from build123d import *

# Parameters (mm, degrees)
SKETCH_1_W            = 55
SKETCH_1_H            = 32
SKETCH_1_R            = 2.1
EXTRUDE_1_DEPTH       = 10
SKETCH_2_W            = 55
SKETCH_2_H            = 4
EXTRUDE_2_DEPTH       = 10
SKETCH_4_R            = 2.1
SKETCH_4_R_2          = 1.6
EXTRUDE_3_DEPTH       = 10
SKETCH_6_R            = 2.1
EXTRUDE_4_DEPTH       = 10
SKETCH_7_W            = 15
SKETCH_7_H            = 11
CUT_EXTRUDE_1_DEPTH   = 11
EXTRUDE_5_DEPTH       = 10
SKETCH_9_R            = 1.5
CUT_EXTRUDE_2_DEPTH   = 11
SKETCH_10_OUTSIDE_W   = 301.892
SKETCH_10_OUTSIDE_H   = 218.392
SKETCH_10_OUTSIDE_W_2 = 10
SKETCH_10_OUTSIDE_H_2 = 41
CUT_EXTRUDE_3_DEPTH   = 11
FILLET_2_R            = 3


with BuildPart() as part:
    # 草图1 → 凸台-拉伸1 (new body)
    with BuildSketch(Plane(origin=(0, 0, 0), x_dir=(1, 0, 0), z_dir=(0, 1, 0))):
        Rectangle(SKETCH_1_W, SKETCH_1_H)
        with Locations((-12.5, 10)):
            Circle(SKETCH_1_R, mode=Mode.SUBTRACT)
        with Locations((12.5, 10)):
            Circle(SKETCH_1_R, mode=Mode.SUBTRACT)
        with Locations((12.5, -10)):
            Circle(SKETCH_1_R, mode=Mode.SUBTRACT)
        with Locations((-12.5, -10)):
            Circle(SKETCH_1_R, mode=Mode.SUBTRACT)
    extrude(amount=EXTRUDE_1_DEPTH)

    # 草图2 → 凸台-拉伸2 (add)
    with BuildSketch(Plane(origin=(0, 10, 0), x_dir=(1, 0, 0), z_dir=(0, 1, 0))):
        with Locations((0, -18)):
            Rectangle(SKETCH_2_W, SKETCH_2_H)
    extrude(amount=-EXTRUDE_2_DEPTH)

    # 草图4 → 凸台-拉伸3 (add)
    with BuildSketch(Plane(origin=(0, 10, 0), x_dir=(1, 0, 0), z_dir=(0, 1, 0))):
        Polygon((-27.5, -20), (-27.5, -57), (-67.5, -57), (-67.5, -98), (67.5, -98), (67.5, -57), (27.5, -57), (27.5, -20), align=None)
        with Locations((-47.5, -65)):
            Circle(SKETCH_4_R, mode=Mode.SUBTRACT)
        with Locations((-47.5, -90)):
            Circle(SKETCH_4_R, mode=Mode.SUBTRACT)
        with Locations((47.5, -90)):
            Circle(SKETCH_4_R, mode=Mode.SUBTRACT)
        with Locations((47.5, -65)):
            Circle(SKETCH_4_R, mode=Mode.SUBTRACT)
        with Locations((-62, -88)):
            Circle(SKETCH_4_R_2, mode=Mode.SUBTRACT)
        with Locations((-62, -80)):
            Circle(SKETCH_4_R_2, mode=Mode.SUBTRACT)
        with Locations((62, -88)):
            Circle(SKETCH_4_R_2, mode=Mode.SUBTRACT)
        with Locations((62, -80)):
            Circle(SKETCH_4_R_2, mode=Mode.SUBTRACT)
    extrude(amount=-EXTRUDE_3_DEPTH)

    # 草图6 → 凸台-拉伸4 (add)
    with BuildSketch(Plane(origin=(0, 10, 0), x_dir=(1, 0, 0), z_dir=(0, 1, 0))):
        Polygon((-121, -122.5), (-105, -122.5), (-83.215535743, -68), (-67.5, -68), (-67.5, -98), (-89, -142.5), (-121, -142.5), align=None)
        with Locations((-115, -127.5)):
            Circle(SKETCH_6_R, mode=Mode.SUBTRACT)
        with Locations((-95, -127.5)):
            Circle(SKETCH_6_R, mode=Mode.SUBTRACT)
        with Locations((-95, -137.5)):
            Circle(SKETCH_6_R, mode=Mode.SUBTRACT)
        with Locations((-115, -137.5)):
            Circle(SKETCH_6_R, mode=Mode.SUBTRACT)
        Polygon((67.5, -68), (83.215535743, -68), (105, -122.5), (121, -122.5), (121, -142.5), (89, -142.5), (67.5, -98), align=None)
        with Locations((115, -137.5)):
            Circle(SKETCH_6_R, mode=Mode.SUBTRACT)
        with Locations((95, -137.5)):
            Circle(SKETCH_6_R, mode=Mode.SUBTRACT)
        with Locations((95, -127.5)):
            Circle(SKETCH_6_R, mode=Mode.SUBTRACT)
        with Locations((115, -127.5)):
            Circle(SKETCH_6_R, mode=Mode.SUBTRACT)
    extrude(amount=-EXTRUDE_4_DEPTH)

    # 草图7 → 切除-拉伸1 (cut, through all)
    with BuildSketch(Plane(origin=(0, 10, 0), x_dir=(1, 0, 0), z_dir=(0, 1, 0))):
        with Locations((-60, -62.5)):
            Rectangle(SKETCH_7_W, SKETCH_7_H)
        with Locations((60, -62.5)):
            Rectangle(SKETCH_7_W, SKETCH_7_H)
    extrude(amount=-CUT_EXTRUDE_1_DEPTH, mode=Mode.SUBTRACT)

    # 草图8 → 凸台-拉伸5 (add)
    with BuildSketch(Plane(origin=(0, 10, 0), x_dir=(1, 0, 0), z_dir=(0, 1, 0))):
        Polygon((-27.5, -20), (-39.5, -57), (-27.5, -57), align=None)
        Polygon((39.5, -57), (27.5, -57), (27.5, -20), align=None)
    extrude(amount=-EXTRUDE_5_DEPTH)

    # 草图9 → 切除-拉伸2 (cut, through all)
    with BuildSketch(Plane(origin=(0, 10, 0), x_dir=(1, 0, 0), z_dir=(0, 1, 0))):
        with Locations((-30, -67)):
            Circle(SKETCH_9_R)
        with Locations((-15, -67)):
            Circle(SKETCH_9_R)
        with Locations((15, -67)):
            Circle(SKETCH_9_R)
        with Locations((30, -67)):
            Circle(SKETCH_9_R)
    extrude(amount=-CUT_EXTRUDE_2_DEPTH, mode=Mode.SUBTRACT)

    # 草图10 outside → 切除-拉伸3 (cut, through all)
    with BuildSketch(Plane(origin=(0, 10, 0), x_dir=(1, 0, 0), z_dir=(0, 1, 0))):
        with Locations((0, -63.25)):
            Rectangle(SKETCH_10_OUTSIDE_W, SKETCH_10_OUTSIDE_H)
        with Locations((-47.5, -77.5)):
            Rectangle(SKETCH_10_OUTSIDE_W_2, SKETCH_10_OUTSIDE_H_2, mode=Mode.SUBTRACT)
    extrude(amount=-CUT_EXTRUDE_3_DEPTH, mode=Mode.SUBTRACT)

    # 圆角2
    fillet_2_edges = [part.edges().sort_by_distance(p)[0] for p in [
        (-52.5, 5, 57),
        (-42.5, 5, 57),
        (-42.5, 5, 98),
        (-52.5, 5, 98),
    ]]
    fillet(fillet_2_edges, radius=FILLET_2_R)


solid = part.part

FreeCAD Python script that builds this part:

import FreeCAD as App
import Part
import Sketcher
from FreeCAD import Vector
Q = App.Units.Quantity


def edges_at(feature, points):
    """Names of the edges that pass closest to the given points."""
    edges = feature.Shape.Edges
    near = lambda p: min(range(len(edges)), key=lambda i: edges[i].distToShape(Part.Vertex(*p))[0])
    return sorted({f"Edge{near(p) + 1}" for p in points})

doc = App.newDocument("Part")
body = doc.addObject("PartDesign::Body", "Body")

sketch1 = body.newObject("Sketcher::SketchObject", "Sketch")
sketch1.AttachmentSupport = (doc.getObject("XZ_Plane"), [""])
sketch1.MapMode = "FlatFace"
sketch1.addGeometry(Part.LineSegment(Vector(-27.5, -16, 0), Vector(-27.5, 16, 0)), False)
sketch1.addGeometry(Part.LineSegment(Vector(-27.5, 16, 0), Vector(27.5, 16, 0)), False)
sketch1.addGeometry(Part.LineSegment(Vector(27.5, 16, 0), Vector(27.5, -16, 0)), False)
sketch1.addGeometry(Part.LineSegment(Vector(27.5, -16, 0), Vector(-27.5, -16, 0)), False)
sketch1.addGeometry(Part.Circle(Vector(-12.5, 10, 0), Vector(0, 0, 1), 2.1), False)
sketch1.addGeometry(Part.Circle(Vector(12.5, 10, 0), Vector(0, 0, 1), 2.1), False)
sketch1.addGeometry(Part.Circle(Vector(-12.5, -10, 0), Vector(0, 0, 1), 2.1), False)
sketch1.addGeometry(Part.Circle(Vector(12.5, -10, 0), Vector(0, 0, 1), 2.1), False)
sketch1.addConstraint(Sketcher.Constraint("Coincident", 0, 2, 1, 1))
sketch1.addConstraint(Sketcher.Constraint("Coincident", 1, 2, 2, 1))
sketch1.addConstraint(Sketcher.Constraint("Coincident", 2, 2, 3, 1))
sketch1.addConstraint(Sketcher.Constraint("Coincident", 3, 2, 0, 1))
sketch1.addConstraint(Sketcher.Constraint("Vertical", 0))
sketch1.addConstraint(Sketcher.Constraint("Horizontal", 1))
sketch1.addConstraint(Sketcher.Constraint("Vertical", 2))
sketch1.addConstraint(Sketcher.Constraint("Horizontal", 3))
sketch1.addConstraint(Sketcher.Constraint("Equal", 4, 5))
sketch1.addConstraint(Sketcher.Constraint("Equal", 5, 6))
sketch1.addConstraint(Sketcher.Constraint("Equal", 6, 7))
sketch1.addConstraint(Sketcher.Constraint("Symmetric", 5, 3, 6, 3, -1, 1))
sketch1.addConstraint(Sketcher.Constraint("Symmetric", 4, 3, 7, 3, -1, 1))
sketch1.addConstraint(Sketcher.Constraint("Symmetric", 0, 2, 2, 2, -1, 1))
sketch1.addConstraint(Sketcher.Constraint("Symmetric", 4, 3, 5, 3, -2))
sketch1.addConstraint(Sketcher.Constraint("Diameter", 4, Q("4.2 mm")))
sketch1.addConstraint(Sketcher.Constraint("DistanceX", 1, 1, 1, 2, Q("55 mm")))
sketch1.addConstraint(Sketcher.Constraint("DistanceY", 0, 1, 0, 2, Q("32 mm")))
sketch1.addConstraint(Sketcher.Constraint("DistanceY", -1, 1, 4, 3, Q("10 mm")))
sketch1.addConstraint(Sketcher.Constraint("DistanceX", 4, 3, 5, 3, Q("25 mm")))
pad1 = body.newObject("PartDesign::Pad", "Pad")
pad1.Profile = sketch1
pad1.Length = 10
pad1.Reversed = True

sketch2 = body.newObject("Sketcher::SketchObject", "Sketch001")
sketch2.AttachmentSupport = (doc.getObject("XZ_Plane"), [""])
sketch2.MapMode = "FlatFace"
sketch2.AttachmentOffset = App.Placement(Vector(0, 0, -10), App.Rotation())
sketch2.addGeometry(Part.LineSegment(Vector(-27.5, 16, 0), Vector(-27.5, 20, 0)), False)
sketch2.addGeometry(Part.LineSegment(Vector(-27.5, 20, 0), Vector(27.5, 20, 0)), False)
sketch2.addGeometry(Part.LineSegment(Vector(27.5, 20, 0), Vector(27.5, 16, 0)), False)
sketch2.addGeometry(Part.LineSegment(Vector(27.5, 16, 0), Vector(-27.5, 16, 0)), False)
sketch2.addConstraint(Sketcher.Constraint("Coincident", 0, 2, 1, 1))
sketch2.addConstraint(Sketcher.Constraint("Coincident", 1, 2, 2, 1))
sketch2.addConstraint(Sketcher.Constraint("Coincident", 2, 2, 3, 1))
sketch2.addConstraint(Sketcher.Constraint("Coincident", 3, 2, 0, 1))
sketch2.addConstraint(Sketcher.Constraint("Vertical", 0))
sketch2.addConstraint(Sketcher.Constraint("Horizontal", 1))
sketch2.addConstraint(Sketcher.Constraint("Vertical", 2))
sketch2.addConstraint(Sketcher.Constraint("Horizontal", 3))
sketch2.addConstraint(Sketcher.Constraint("DistanceX", 1, 1, 1, 2, Q("55 mm")))
sketch2.addConstraint(Sketcher.Constraint("DistanceY", 0, 1, 0, 2, Q("4 mm")))
sketch2.addConstraint(Sketcher.Constraint("DistanceY", -1, 1, 0, 2, Q("20 mm")))
sketch2.addConstraint(Sketcher.Constraint("DistanceX", 0, 2, -1, 1, Q("27.5 mm")))
pad2 = body.newObject("PartDesign::Pad", "Pad001")
pad2.Profile = sketch2
pad2.Length = 10

sketch3 = body.newObject("Sketcher::SketchObject", "Sketch002")
sketch3.AttachmentSupport = (doc.getObject("XZ_Plane"), [""])
sketch3.MapMode = "FlatFace"
sketch3.AttachmentOffset = App.Placement(Vector(0, 0, -10), App.Rotation())
sketch3.addGeometry(Part.LineSegment(Vector(-27.5, 20, 0), Vector(-27.5, 57, 0)), False)
sketch3.addGeometry(Part.LineSegment(Vector(-27.5, 57, 0), Vector(-67.5, 57, 0)), False)
sketch3.addGeometry(Part.LineSegment(Vector(-67.5, 57, 0), Vector(-67.5, 98, 0)), False)
sketch3.addGeometry(Part.LineSegment(Vector(-67.5, 98, 0), Vector(67.5, 98, 0)), False)
sketch3.addGeometry(Part.LineSegment(Vector(67.5, 98, 0), Vector(67.5, 57, 0)), False)
sketch3.addGeometry(Part.LineSegment(Vector(67.5, 57, 0), Vector(27.5, 57, 0)), False)
sketch3.addGeometry(Part.LineSegment(Vector(27.5, 57, 0), Vector(27.5, 20, 0)), False)
sketch3.addGeometry(Part.LineSegment(Vector(27.5, 20, 0), Vector(-27.5, 20, 0)), False)
sketch3.addGeometry(Part.Circle(Vector(-47.5, 90, 0), Vector(0, 0, 1), 2.1), False)
sketch3.addGeometry(Part.Circle(Vector(-62, 88, 0), Vector(0, 0, 1), 1.6), False)
sketch3.addGeometry(Part.Circle(Vector(-62, 80, 0), Vector(0, 0, 1), 1.6), False)
sketch3.addGeometry(Part.Circle(Vector(47.5, 90, 0), Vector(0, 0, 1), 2.1), False)
sketch3.addGeometry(Part.Circle(Vector(62, 88, 0), Vector(0, 0, 1), 1.6), False)
sketch3.addGeometry(Part.Circle(Vector(62, 80, 0), Vector(0, 0, 1), 1.6), False)
sketch3.addGeometry(Part.Circle(Vector(-47.5, 65, 0), Vector(0, 0, 1), 2.1), False)
sketch3.addGeometry(Part.Circle(Vector(47.5, 65, 0), Vector(0, 0, 1), 2.1), False)
sketch3.addConstraint(Sketcher.Constraint("Coincident", 0, 2, 1, 1))
sketch3.addConstraint(Sketcher.Constraint("Coincident", 1, 2, 2, 1))
sketch3.addConstraint(Sketcher.Constraint("Coincident", 2, 2, 3, 1))
sketch3.addConstraint(Sketcher.Constraint("Coincident", 3, 2, 4, 1))
sketch3.addConstraint(Sketcher.Constraint("Coincident", 4, 2, 5, 1))
sketch3.addConstraint(Sketcher.Constraint("Coincident", 5, 2, 6, 1))
sketch3.addConstraint(Sketcher.Constraint("Coincident", 6, 2, 7, 1))
sketch3.addConstraint(Sketcher.Constraint("Coincident", 7, 2, 0, 1))
sketch3.addConstraint(Sketcher.Constraint("Vertical", 0))
sketch3.addConstraint(Sketcher.Constraint("Horizontal", 1))
sketch3.addConstraint(Sketcher.Constraint("Vertical", 2))
sketch3.addConstraint(Sketcher.Constraint("Horizontal", 3))
sketch3.addConstraint(Sketcher.Constraint("Vertical", 4))
sketch3.addConstraint(Sketcher.Constraint("Horizontal", 5))
sketch3.addConstraint(Sketcher.Constraint("Vertical", 6))
sketch3.addConstraint(Sketcher.Constraint("Horizontal", 7))
sketch3.addConstraint(Sketcher.Constraint("Equal", 9, 10))
sketch3.addConstraint(Sketcher.Constraint("Equal", 8, 11))
sketch3.addConstraint(Sketcher.Constraint("Equal", 10, 12))
sketch3.addConstraint(Sketcher.Constraint("Equal", 12, 13))
sketch3.addConstraint(Sketcher.Constraint("Equal", 11, 14))
sketch3.addConstraint(Sketcher.Constraint("Equal", 14, 15))
sketch3.addConstraint(Sketcher.Constraint("Symmetric", 8, 3, 11, 3, -2))
sketch3.addConstraint(Sketcher.Constraint("Symmetric", 9, 3, 12, 3, -2))
sketch3.addConstraint(Sketcher.Constraint("Symmetric", 10, 3, 13, 3, -2))
sketch3.addConstraint(Sketcher.Constraint("Symmetric", 14, 3, 15, 3, -2))
sketch3.addConstraint(Sketcher.Constraint("Symmetric", 1, 2, 4, 2, -2))
sketch3.addConstraint(Sketcher.Constraint("Vertical", 9, 3, 10, 3))
sketch3.addConstraint(Sketcher.Constraint("Vertical", 8, 3, 14, 3))
sketch3.addConstraint(Sketcher.Constraint("Equal", 1, 5))
sketch3.addConstraint(Sketcher.Constraint("Diameter", 8, Q("4.2 mm")))
sketch3.addConstraint(Sketcher.Constraint("Diameter", 9, Q("3.2 mm")))
sketch3.addConstraint(Sketcher.Constraint("DistanceX", 1, 2, 1, 1, Q("40 mm")))
sketch3.addConstraint(Sketcher.Constraint("DistanceX", 3, 1, 3, 2, Q("135 mm")))
sketch3.addConstraint(Sketcher.Constraint("DistanceY", 0, 1, 0, 2, Q("37 mm")))
sketch3.addConstraint(Sketcher.Constraint("DistanceY", 2, 1, 2, 2, Q("41 mm")))
sketch3.addConstraint(Sketcher.Constraint("DistanceY", -1, 1, 8, 3, Q("90 mm")))
sketch3.addConstraint(Sketcher.Constraint("DistanceX", 9, 3, -1, 1, Q("62 mm")))
sketch3.addConstraint(Sketcher.Constraint("DistanceY", -1, 1, 9, 3, Q("88 mm")))
sketch3.addConstraint(Sketcher.Constraint("DistanceY", -1, 1, 10, 3, Q("80 mm")))
sketch3.addConstraint(Sketcher.Constraint("DistanceY", -1, 1, 14, 3, Q("65 mm")))
sketch3.addConstraint(Sketcher.Constraint("DistanceY", -1, 1, 0, 2, Q("57 mm")))
sketch3.addConstraint(Sketcher.Constraint("DistanceX", 8, 3, 11, 3, Q("95 mm")))
pad3 = body.newObject("PartDesign::Pad", "Pad002")
pad3.Profile = sketch3
pad3.Length = 10

sketch4 = body.newObject("Sketcher::SketchObject", "Sketch003")
sketch4.AttachmentSupport = (doc.getObject("XZ_Plane"), [""])
sketch4.MapMode = "FlatFace"
sketch4.AttachmentOffset = App.Placement(Vector(0, 0, -10), App.Rotation())
sketch4.addGeometry(Part.LineSegment(Vector(-105, 122.5, 0), Vector(-121, 122.5, 0)), False)
sketch4.addGeometry(Part.LineSegment(Vector(-121, 122.5, 0), Vector(-121, 142.5, 0)), False)
sketch4.addGeometry(Part.LineSegment(Vector(-121, 142.5, 0), Vector(-89, 142.5, 0)), False)
sketch4.addGeometry(Part.LineSegment(Vector(-89, 142.5, 0), Vector(-67.5, 98, 0)), False)
sketch4.addGeometry(Part.LineSegment(Vector(-67.5, 98, 0), Vector(-67.5, 68, 0)), False)
sketch4.addGeometry(Part.LineSegment(Vector(-67.5, 68, 0), Vector(-83.215536, 68, 0)), False)
sketch4.addGeometry(Part.LineSegment(Vector(-83.215536, 68, 0), Vector(-105, 122.5, 0)), False)
sketch4.addGeometry(Part.Circle(Vector(-95, 137.5, 0), Vector(0, 0, 1), 2.1), False)
sketch4.addGeometry(Part.Circle(Vector(-115, 137.5, 0), Vector(0, 0, 1), 2.1), False)
sketch4.addGeometry(Part.Circle(Vector(-95, 127.5, 0), Vector(0, 0, 1), 2.1), False)
sketch4.addGeometry(Part.Circle(Vector(-115, 127.5, 0), Vector(0, 0, 1), 2.1), False)
sketch4.addGeometry(Part.LineSegment(Vector(83.215536, 68, 0), Vector(67.5, 68, 0)), False)
sketch4.addGeometry(Part.LineSegment(Vector(67.5, 68, 0), Vector(67.5, 98, 0)), False)
sketch4.addGeometry(Part.LineSegment(Vector(67.5, 98, 0), Vector(89, 142.5, 0)), False)
sketch4.addGeometry(Part.LineSegment(Vector(89, 142.5, 0), Vector(121, 142.5, 0)), False)
sketch4.addGeometry(Part.LineSegment(Vector(121, 142.5, 0), Vector(121, 122.5, 0)), False)
sketch4.addGeometry(Part.LineSegment(Vector(121, 122.5, 0), Vector(105, 122.5, 0)), False)
sketch4.addGeometry(Part.LineSegment(Vector(105, 122.5, 0), Vector(83.215536, 68, 0)), False)
sketch4.addGeometry(Part.Circle(Vector(115, 137.5, 0), Vector(0, 0, 1), 2.1), False)
sketch4.addGeometry(Part.Circle(Vector(95, 137.5, 0), Vector(0, 0, 1), 2.1), False)
sketch4.addGeometry(Part.Circle(Vector(115, 127.5, 0), Vector(0, 0, 1), 2.1), False)
sketch4.addGeometry(Part.Circle(Vector(95, 127.5, 0), Vector(0, 0, 1), 2.1), False)
sketch4.addConstraint(Sketcher.Constraint("Coincident", 0, 2, 1, 1))
sketch4.addConstraint(Sketcher.Constraint("Coincident", 1, 2, 2, 1))
sketch4.addConstraint(Sketcher.Constraint("Coincident", 2, 2, 3, 1))
sketch4.addConstraint(Sketcher.Constraint("Coincident", 3, 2, 4, 1))
sketch4.addConstraint(Sketcher.Constraint("Coincident", 4, 2, 5, 1))
sketch4.addConstraint(Sketcher.Constraint("Coincident", 5, 2, 6, 1))
sketch4.addConstraint(Sketcher.Constraint("Coincident", 6, 2, 0, 1))
sketch4.addConstraint(Sketcher.Constraint("Coincident", 11, 2, 12, 1))
sketch4.addConstraint(Sketcher.Constraint("Coincident", 12, 2, 13, 1))
sketch4.addConstraint(Sketcher.Constraint("Coincident", 13, 2, 14, 1))
sketch4.addConstraint(Sketcher.Constraint("Coincident", 14, 2, 15, 1))
sketch4.addConstraint(Sketcher.Constraint("Coincident", 15, 2, 16, 1))
sketch4.addConstraint(Sketcher.Constraint("Coincident", 16, 2, 17, 1))
sketch4.addConstraint(Sketcher.Constraint("Coincident", 17, 2, 11, 1))
sketch4.addConstraint(Sketcher.Constraint("Horizontal", 0))
sketch4.addConstraint(Sketcher.Constraint("Vertical", 1))
sketch4.addConstraint(Sketcher.Constraint("Horizontal", 2))
sketch4.addConstraint(Sketcher.Constraint("Vertical", 4))
sketch4.addConstraint(Sketcher.Constraint("Horizontal", 5))
sketch4.addConstraint(Sketcher.Constraint("Horizontal", 11))
sketch4.addConstraint(Sketcher.Constraint("Vertical", 12))
sketch4.addConstraint(Sketcher.Constraint("Horizontal", 14))
sketch4.addConstraint(Sketcher.Constraint("Vertical", 15))
sketch4.addConstraint(Sketcher.Constraint("Horizontal", 16))
sketch4.addConstraint(Sketcher.Constraint("Equal", 7, 8))
sketch4.addConstraint(Sketcher.Constraint("Equal", 8, 9))
sketch4.addConstraint(Sketcher.Constraint("Equal", 9, 10))
sketch4.addConstraint(Sketcher.Constraint("Equal", 10, 18))
sketch4.addConstraint(Sketcher.Constraint("Equal", 18, 19))
sketch4.addConstraint(Sketcher.Constraint("Equal", 19, 20))
sketch4.addConstraint(Sketcher.Constraint("Equal", 20, 21))
sketch4.addConstraint(Sketcher.Constraint("Symmetric", 8, 3, 18, 3, -2))
sketch4.addConstraint(Sketcher.Constraint("Symmetric", 7, 3, 19, 3, -2))
sketch4.addConstraint(Sketcher.Constraint("Symmetric", 10, 3, 20, 3, -2))
sketch4.addConstraint(Sketcher.Constraint("Symmetric", 9, 3, 21, 3, -2))
sketch4.addConstraint(Sketcher.Constraint("Symmetric", 4, 2, 11, 2, -2))
sketch4.addConstraint(Sketcher.Constraint("Symmetric", 2, 2, 13, 2, -2))
sketch4.addConstraint(Sketcher.Constraint("Symmetric", 0, 2, 15, 2, -2))
sketch4.addConstraint(Sketcher.Constraint("Horizontal", 7, 3, 8, 3))
sketch4.addConstraint(Sketcher.Constraint("Horizontal", 9, 3, 10, 3))
sketch4.addConstraint(Sketcher.Constraint("Horizontal", 3, 2, 12, 2))
sketch4.addConstraint(Sketcher.Constraint("Vertical", 7, 3, 9, 3))
sketch4.addConstraint(Sketcher.Constraint("Vertical", 8, 3, 10, 3))
sketch4.addConstraint(Sketcher.Constraint("Equal", 5, 11))
sketch4.addConstraint(Sketcher.Constraint("Equal", 0, 16))
sketch4.addConstraint(Sketcher.Constraint("Diameter", 7, Q("4.2 mm")))
sketch4.addConstraint(Sketcher.Constraint("DistanceX", 0, 2, 0, 1, Q("16 mm")))
sketch4.addConstraint(Sketcher.Constraint("DistanceX", 2, 1, 2, 2, Q("32 mm")))
sketch4.addConstraint(Sketcher.Constraint("DistanceY", 1, 1, 1, 2, Q("20 mm")))
sketch4.addConstraint(Sketcher.Constraint("DistanceY", 4, 2, 4, 1, Q("30 mm")))
sketch4.addConstraint(Sketcher.Constraint("DistanceX", 7, 3, -1, 1, Q("95 mm")))
sketch4.addConstraint(Sketcher.Constraint("DistanceX", 8, 3, -1, 1, Q("115 mm")))
sketch4.addConstraint(Sketcher.Constraint("DistanceX", 0, 2, -1, 1, Q("121 mm")))
sketch4.addConstraint(Sketcher.Constraint("DistanceY", -1, 1, 3, 2, Q("98 mm")))
sketch4.addConstraint(Sketcher.Constraint("DistanceY", 9, 3, 7, 3, Q("10 mm")))
sketch4.addConstraint(Sketcher.Constraint("DistanceY", 0, 2, 10, 3, Q("5 mm")))
sketch4.addConstraint(Sketcher.Constraint("DistanceX", 4, 2, 11, 2, Q("135 mm")))
sketch4.addConstraint(Sketcher.Constraint("DistanceY", -1, 1, 7, 3, Q("137.5 mm")))
sketch4.addConstraint(Sketcher.Constraint("Distance", 6, Q("58.692528 mm")))
pad4 = body.newObject("PartDesign::Pad", "Pad003")
pad4.Profile = sketch4
pad4.Length = 10

sketch5 = body.newObject("Sketcher::SketchObject", "Sketch004")
sketch5.AttachmentSupport = (doc.getObject("XZ_Plane"), [""])
sketch5.MapMode = "FlatFace"
sketch5.AttachmentOffset = App.Placement(Vector(0, 0, -10), App.Rotation())
sketch5.addGeometry(Part.LineSegment(Vector(-67.5, 57, 0), Vector(-67.5, 68, 0)), False)
sketch5.addGeometry(Part.LineSegment(Vector(-67.5, 68, 0), Vector(-52.5, 68, 0)), False)
sketch5.addGeometry(Part.LineSegment(Vector(-52.5, 68, 0), Vector(-52.5, 57, 0)), False)
sketch5.addGeometry(Part.LineSegment(Vector(-52.5, 57, 0), Vector(-67.5, 57, 0)), False)
sketch5.addGeometry(Part.LineSegment(Vector(52.5, 57, 0), Vector(52.5, 68, 0)), False)
sketch5.addGeometry(Part.LineSegment(Vector(52.5, 68, 0), Vector(67.5, 68, 0)), False)
sketch5.addGeometry(Part.LineSegment(Vector(67.5, 68, 0), Vector(67.5, 57, 0)), False)
sketch5.addGeometry(Part.LineSegment(Vector(67.5, 57, 0), Vector(52.5, 57, 0)), False)
sketch5.addConstraint(Sketcher.Constraint("Coincident", 0, 2, 1, 1))
sketch5.addConstraint(Sketcher.Constraint("Coincident", 1, 2, 2, 1))
sketch5.addConstraint(Sketcher.Constraint("Coincident", 2, 2, 3, 1))
sketch5.addConstraint(Sketcher.Constraint("Coincident", 3, 2, 0, 1))
sketch5.addConstraint(Sketcher.Constraint("Coincident", 4, 2, 5, 1))
sketch5.addConstraint(Sketcher.Constraint("Coincident", 5, 2, 6, 1))
sketch5.addConstraint(Sketcher.Constraint("Coincident", 6, 2, 7, 1))
sketch5.addConstraint(Sketcher.Constraint("Coincident", 7, 2, 4, 1))
sketch5.addConstraint(Sketcher.Constraint("Vertical", 0))
sketch5.addConstraint(Sketcher.Constraint("Horizontal", 1))
sketch5.addConstraint(Sketcher.Constraint("Vertical", 2))
sketch5.addConstraint(Sketcher.Constraint("Horizontal", 3))
sketch5.addConstraint(Sketcher.Constraint("Vertical", 4))
sketch5.addConstraint(Sketcher.Constraint("Horizontal", 5))
sketch5.addConstraint(Sketcher.Constraint("Vertical", 6))
sketch5.addConstraint(Sketcher.Constraint("Horizontal", 7))
sketch5.addConstraint(Sketcher.Constraint("Symmetric", 1, 2, 4, 2, -2))
sketch5.addConstraint(Sketcher.Constraint("Symmetric", 3, 2, 6, 2, -2))
sketch5.addConstraint(Sketcher.Constraint("DistanceX", 1, 1, 1, 2, Q("15 mm")))
sketch5.addConstraint(Sketcher.Constraint("DistanceY", 0, 1, 0, 2, Q("11 mm")))
sketch5.addConstraint(Sketcher.Constraint("DistanceY", -1, 1, 0, 2, Q("68 mm")))
sketch5.addConstraint(Sketcher.Constraint("DistanceX", 1, 2, 4, 2, Q("105 mm")))
pocket1 = body.newObject("PartDesign::Pocket", "Pocket")
pocket1.Profile = sketch5
pocket1.Type = "ThroughAll"
pocket1.Reversed = True

sketch6 = body.newObject("Sketcher::SketchObject", "Sketch005")
sketch6.AttachmentSupport = (doc.getObject("XZ_Plane"), [""])
sketch6.MapMode = "FlatFace"
sketch6.AttachmentOffset = App.Placement(Vector(0, 0, -10), App.Rotation())
sketch6.addGeometry(Part.LineSegment(Vector(-27.5, 20, 0), Vector(-39.5, 57, 0)), False)
sketch6.addGeometry(Part.LineSegment(Vector(-39.5, 57, 0), Vector(-27.5, 57, 0)), False)
sketch6.addGeometry(Part.LineSegment(Vector(-27.5, 57, 0), Vector(-27.5, 20, 0)), False)
sketch6.addGeometry(Part.LineSegment(Vector(27.5, 57, 0), Vector(39.5, 57, 0)), False)
sketch6.addGeometry(Part.LineSegment(Vector(39.5, 57, 0), Vector(27.5, 20, 0)), False)
sketch6.addGeometry(Part.LineSegment(Vector(27.5, 20, 0), Vector(27.5, 57, 0)), False)
sketch6.addConstraint(Sketcher.Constraint("Coincident", 0, 2, 1, 1))
sketch6.addConstraint(Sketcher.Constraint("Coincident", 1, 2, 2, 1))
sketch6.addConstraint(Sketcher.Constraint("Coincident", 2, 2, 0, 1))
sketch6.addConstraint(Sketcher.Constraint("Coincident", 3, 2, 4, 1))
sketch6.addConstraint(Sketcher.Constraint("Coincident", 4, 2, 5, 1))
sketch6.addConstraint(Sketcher.Constraint("Coincident", 5, 2, 3, 1))
sketch6.addConstraint(Sketcher.Constraint("Horizontal", 1))
sketch6.addConstraint(Sketcher.Constraint("Vertical", 2))
sketch6.addConstraint(Sketcher.Constraint("Horizontal", 3))
sketch6.addConstraint(Sketcher.Constraint("Vertical", 5))
sketch6.addConstraint(Sketcher.Constraint("Symmetric", 0, 2, 3, 2, -2))
sketch6.addConstraint(Sketcher.Constraint("Symmetric", 2, 2, 4, 2, -2))
sketch6.addConstraint(Sketcher.Constraint("DistanceX", 1, 1, 1, 2, Q("12 mm")))
sketch6.addConstraint(Sketcher.Constraint("DistanceY", 2, 2, 2, 1, Q("37 mm")))
sketch6.addConstraint(Sketcher.Constraint("DistanceY", -1, 1, 0, 2, Q("57 mm")))
sketch6.addConstraint(Sketcher.Constraint("DistanceX", 1, 2, 3, 2, Q("67 mm")))
pad5 = body.newObject("PartDesign::Pad", "Pad004")
pad5.Profile = sketch6
pad5.Length = 10

sketch7 = body.newObject("Sketcher::SketchObject", "Sketch006")
sketch7.AttachmentSupport = (doc.getObject("XZ_Plane"), [""])
sketch7.MapMode = "FlatFace"
sketch7.AttachmentOffset = App.Placement(Vector(0, 0, -10), App.Rotation())
sketch7.addGeometry(Part.Circle(Vector(-30, 67, 0), Vector(0, 0, 1), 1.5), False)
sketch7.addGeometry(Part.Circle(Vector(-15, 67, 0), Vector(0, 0, 1), 1.5), False)
sketch7.addGeometry(Part.Circle(Vector(15, 67, 0), Vector(0, 0, 1), 1.5), False)
sketch7.addGeometry(Part.Circle(Vector(30, 67, 0), Vector(0, 0, 1), 1.5), False)
sketch7.addConstraint(Sketcher.Constraint("Equal", 0, 1))
sketch7.addConstraint(Sketcher.Constraint("Equal", 1, 2))
sketch7.addConstraint(Sketcher.Constraint("Equal", 2, 3))
sketch7.addConstraint(Sketcher.Constraint("Symmetric", 1, 3, 2, 3, -2))
sketch7.addConstraint(Sketcher.Constraint("Symmetric", 0, 3, 3, 3, -2))
sketch7.addConstraint(Sketcher.Constraint("Horizontal", 0, 3, 1, 3))
sketch7.addConstraint(Sketcher.Constraint("Diameter", 0, Q("3 mm")))
sketch7.addConstraint(Sketcher.Constraint("DistanceX", 0, 3, -1, 1, Q("30 mm")))
sketch7.addConstraint(Sketcher.Constraint("DistanceY", -1, 1, 0, 3, Q("67 mm")))
sketch7.addConstraint(Sketcher.Constraint("DistanceX", 1, 3, -1, 1, Q("15 mm")))
pocket2 = body.newObject("PartDesign::Pocket", "Pocket001")
pocket2.Profile = sketch7
pocket2.Type = "ThroughAll"
pocket2.Reversed = True

sketch8 = body.newObject("Sketcher::SketchObject", "Sketch007")
sketch8.AttachmentSupport = (doc.getObject("XZ_Plane"), [""])
sketch8.MapMode = "FlatFace"
sketch8.AttachmentOffset = App.Placement(Vector(0, 0, -10), App.Rotation())
sketch8.addGeometry(Part.LineSegment(Vector(-150.946, -45.946, 0), Vector(-150.946, 172.446, 0)), False)
sketch8.addGeometry(Part.LineSegment(Vector(-150.946, 172.446, 0), Vector(150.946, 172.446, 0)), False)
sketch8.addGeometry(Part.LineSegment(Vector(150.946, 172.446, 0), Vector(150.946, -45.946, 0)), False)
sketch8.addGeometry(Part.LineSegment(Vector(150.946, -45.946, 0), Vector(-150.946, -45.946, 0)), False)
sketch8.addGeometry(Part.LineSegment(Vector(-42.5, 98, 0), Vector(-52.5, 98, 0)), False)
sketch8.addGeometry(Part.LineSegment(Vector(-52.5, 98, 0), Vector(-52.5, 57, 0)), False)
sketch8.addGeometry(Part.LineSegment(Vector(-52.5, 57, 0), Vector(-42.5, 57, 0)), False)
sketch8.addGeometry(Part.LineSegment(Vector(-42.5, 57, 0), Vector(-42.5, 98, 0)), False)
sketch8.addConstraint(Sketcher.Constraint("Coincident", 0, 2, 1, 1))
sketch8.addConstraint(Sketcher.Constraint("Coincident", 1, 2, 2, 1))
sketch8.addConstraint(Sketcher.Constraint("Coincident", 2, 2, 3, 1))
sketch8.addConstraint(Sketcher.Constraint("Coincident", 3, 2, 0, 1))
sketch8.addConstraint(Sketcher.Constraint("Coincident", 4, 2, 5, 1))
sketch8.addConstraint(Sketcher.Constraint("Coincident", 5, 2, 6, 1))
sketch8.addConstraint(Sketcher.Constraint("Coincident", 6, 2, 7, 1))
sketch8.addConstraint(Sketcher.Constraint("Coincident", 7, 2, 4, 1))
sketch8.addConstraint(Sketcher.Constraint("Vertical", 0))
sketch8.addConstraint(Sketcher.Constraint("Horizontal", 1))
sketch8.addConstraint(Sketcher.Constraint("Vertical", 2))
sketch8.addConstraint(Sketcher.Constraint("Horizontal", 3))
sketch8.addConstraint(Sketcher.Constraint("Horizontal", 4))
sketch8.addConstraint(Sketcher.Constraint("Vertical", 5))
sketch8.addConstraint(Sketcher.Constraint("Horizontal", 6))
sketch8.addConstraint(Sketcher.Constraint("Vertical", 7))
sketch8.addConstraint(Sketcher.Constraint("DistanceX", 4, 2, 4, 1, Q("10 mm")))
sketch8.addConstraint(Sketcher.Constraint("DistanceY", 5, 2, 5, 1, Q("41 mm")))
sketch8.addConstraint(Sketcher.Constraint("DistanceY", -1, 1, 4, 2, Q("98 mm")))
sketch8.addConstraint(Sketcher.Constraint("DistanceX", 4, 2, -1, 1, Q("52.5 mm")))
sketch8.addConstraint(Sketcher.Constraint("DistanceX", 1, 1, 1, 2, Q("301.892 mm")))
sketch8.addConstraint(Sketcher.Constraint("DistanceY", 0, 1, 0, 2, Q("218.392 mm")))
sketch8.addConstraint(Sketcher.Constraint("DistanceX", 0, 2, -1, 1, Q("150.946 mm")))
sketch8.addConstraint(Sketcher.Constraint("DistanceY", -1, 1, 0, 2, Q("172.446 mm")))
pocket3 = body.newObject("PartDesign::Pocket", "Pocket002")
pocket3.Profile = sketch8
pocket3.Type = "ThroughAll"
pocket3.Reversed = True
doc.recompute()

fillet = body.newObject("PartDesign::Fillet", "Fillet")
fillet.Base = (pocket3, edges_at(pocket3, [
    (-52.5, 5, 57),
    (-42.5, 5, 57),
    (-42.5, 5, 98),
    (-52.5, 5, 98),
]))
fillet.Radius = 3

doc.recompute()
